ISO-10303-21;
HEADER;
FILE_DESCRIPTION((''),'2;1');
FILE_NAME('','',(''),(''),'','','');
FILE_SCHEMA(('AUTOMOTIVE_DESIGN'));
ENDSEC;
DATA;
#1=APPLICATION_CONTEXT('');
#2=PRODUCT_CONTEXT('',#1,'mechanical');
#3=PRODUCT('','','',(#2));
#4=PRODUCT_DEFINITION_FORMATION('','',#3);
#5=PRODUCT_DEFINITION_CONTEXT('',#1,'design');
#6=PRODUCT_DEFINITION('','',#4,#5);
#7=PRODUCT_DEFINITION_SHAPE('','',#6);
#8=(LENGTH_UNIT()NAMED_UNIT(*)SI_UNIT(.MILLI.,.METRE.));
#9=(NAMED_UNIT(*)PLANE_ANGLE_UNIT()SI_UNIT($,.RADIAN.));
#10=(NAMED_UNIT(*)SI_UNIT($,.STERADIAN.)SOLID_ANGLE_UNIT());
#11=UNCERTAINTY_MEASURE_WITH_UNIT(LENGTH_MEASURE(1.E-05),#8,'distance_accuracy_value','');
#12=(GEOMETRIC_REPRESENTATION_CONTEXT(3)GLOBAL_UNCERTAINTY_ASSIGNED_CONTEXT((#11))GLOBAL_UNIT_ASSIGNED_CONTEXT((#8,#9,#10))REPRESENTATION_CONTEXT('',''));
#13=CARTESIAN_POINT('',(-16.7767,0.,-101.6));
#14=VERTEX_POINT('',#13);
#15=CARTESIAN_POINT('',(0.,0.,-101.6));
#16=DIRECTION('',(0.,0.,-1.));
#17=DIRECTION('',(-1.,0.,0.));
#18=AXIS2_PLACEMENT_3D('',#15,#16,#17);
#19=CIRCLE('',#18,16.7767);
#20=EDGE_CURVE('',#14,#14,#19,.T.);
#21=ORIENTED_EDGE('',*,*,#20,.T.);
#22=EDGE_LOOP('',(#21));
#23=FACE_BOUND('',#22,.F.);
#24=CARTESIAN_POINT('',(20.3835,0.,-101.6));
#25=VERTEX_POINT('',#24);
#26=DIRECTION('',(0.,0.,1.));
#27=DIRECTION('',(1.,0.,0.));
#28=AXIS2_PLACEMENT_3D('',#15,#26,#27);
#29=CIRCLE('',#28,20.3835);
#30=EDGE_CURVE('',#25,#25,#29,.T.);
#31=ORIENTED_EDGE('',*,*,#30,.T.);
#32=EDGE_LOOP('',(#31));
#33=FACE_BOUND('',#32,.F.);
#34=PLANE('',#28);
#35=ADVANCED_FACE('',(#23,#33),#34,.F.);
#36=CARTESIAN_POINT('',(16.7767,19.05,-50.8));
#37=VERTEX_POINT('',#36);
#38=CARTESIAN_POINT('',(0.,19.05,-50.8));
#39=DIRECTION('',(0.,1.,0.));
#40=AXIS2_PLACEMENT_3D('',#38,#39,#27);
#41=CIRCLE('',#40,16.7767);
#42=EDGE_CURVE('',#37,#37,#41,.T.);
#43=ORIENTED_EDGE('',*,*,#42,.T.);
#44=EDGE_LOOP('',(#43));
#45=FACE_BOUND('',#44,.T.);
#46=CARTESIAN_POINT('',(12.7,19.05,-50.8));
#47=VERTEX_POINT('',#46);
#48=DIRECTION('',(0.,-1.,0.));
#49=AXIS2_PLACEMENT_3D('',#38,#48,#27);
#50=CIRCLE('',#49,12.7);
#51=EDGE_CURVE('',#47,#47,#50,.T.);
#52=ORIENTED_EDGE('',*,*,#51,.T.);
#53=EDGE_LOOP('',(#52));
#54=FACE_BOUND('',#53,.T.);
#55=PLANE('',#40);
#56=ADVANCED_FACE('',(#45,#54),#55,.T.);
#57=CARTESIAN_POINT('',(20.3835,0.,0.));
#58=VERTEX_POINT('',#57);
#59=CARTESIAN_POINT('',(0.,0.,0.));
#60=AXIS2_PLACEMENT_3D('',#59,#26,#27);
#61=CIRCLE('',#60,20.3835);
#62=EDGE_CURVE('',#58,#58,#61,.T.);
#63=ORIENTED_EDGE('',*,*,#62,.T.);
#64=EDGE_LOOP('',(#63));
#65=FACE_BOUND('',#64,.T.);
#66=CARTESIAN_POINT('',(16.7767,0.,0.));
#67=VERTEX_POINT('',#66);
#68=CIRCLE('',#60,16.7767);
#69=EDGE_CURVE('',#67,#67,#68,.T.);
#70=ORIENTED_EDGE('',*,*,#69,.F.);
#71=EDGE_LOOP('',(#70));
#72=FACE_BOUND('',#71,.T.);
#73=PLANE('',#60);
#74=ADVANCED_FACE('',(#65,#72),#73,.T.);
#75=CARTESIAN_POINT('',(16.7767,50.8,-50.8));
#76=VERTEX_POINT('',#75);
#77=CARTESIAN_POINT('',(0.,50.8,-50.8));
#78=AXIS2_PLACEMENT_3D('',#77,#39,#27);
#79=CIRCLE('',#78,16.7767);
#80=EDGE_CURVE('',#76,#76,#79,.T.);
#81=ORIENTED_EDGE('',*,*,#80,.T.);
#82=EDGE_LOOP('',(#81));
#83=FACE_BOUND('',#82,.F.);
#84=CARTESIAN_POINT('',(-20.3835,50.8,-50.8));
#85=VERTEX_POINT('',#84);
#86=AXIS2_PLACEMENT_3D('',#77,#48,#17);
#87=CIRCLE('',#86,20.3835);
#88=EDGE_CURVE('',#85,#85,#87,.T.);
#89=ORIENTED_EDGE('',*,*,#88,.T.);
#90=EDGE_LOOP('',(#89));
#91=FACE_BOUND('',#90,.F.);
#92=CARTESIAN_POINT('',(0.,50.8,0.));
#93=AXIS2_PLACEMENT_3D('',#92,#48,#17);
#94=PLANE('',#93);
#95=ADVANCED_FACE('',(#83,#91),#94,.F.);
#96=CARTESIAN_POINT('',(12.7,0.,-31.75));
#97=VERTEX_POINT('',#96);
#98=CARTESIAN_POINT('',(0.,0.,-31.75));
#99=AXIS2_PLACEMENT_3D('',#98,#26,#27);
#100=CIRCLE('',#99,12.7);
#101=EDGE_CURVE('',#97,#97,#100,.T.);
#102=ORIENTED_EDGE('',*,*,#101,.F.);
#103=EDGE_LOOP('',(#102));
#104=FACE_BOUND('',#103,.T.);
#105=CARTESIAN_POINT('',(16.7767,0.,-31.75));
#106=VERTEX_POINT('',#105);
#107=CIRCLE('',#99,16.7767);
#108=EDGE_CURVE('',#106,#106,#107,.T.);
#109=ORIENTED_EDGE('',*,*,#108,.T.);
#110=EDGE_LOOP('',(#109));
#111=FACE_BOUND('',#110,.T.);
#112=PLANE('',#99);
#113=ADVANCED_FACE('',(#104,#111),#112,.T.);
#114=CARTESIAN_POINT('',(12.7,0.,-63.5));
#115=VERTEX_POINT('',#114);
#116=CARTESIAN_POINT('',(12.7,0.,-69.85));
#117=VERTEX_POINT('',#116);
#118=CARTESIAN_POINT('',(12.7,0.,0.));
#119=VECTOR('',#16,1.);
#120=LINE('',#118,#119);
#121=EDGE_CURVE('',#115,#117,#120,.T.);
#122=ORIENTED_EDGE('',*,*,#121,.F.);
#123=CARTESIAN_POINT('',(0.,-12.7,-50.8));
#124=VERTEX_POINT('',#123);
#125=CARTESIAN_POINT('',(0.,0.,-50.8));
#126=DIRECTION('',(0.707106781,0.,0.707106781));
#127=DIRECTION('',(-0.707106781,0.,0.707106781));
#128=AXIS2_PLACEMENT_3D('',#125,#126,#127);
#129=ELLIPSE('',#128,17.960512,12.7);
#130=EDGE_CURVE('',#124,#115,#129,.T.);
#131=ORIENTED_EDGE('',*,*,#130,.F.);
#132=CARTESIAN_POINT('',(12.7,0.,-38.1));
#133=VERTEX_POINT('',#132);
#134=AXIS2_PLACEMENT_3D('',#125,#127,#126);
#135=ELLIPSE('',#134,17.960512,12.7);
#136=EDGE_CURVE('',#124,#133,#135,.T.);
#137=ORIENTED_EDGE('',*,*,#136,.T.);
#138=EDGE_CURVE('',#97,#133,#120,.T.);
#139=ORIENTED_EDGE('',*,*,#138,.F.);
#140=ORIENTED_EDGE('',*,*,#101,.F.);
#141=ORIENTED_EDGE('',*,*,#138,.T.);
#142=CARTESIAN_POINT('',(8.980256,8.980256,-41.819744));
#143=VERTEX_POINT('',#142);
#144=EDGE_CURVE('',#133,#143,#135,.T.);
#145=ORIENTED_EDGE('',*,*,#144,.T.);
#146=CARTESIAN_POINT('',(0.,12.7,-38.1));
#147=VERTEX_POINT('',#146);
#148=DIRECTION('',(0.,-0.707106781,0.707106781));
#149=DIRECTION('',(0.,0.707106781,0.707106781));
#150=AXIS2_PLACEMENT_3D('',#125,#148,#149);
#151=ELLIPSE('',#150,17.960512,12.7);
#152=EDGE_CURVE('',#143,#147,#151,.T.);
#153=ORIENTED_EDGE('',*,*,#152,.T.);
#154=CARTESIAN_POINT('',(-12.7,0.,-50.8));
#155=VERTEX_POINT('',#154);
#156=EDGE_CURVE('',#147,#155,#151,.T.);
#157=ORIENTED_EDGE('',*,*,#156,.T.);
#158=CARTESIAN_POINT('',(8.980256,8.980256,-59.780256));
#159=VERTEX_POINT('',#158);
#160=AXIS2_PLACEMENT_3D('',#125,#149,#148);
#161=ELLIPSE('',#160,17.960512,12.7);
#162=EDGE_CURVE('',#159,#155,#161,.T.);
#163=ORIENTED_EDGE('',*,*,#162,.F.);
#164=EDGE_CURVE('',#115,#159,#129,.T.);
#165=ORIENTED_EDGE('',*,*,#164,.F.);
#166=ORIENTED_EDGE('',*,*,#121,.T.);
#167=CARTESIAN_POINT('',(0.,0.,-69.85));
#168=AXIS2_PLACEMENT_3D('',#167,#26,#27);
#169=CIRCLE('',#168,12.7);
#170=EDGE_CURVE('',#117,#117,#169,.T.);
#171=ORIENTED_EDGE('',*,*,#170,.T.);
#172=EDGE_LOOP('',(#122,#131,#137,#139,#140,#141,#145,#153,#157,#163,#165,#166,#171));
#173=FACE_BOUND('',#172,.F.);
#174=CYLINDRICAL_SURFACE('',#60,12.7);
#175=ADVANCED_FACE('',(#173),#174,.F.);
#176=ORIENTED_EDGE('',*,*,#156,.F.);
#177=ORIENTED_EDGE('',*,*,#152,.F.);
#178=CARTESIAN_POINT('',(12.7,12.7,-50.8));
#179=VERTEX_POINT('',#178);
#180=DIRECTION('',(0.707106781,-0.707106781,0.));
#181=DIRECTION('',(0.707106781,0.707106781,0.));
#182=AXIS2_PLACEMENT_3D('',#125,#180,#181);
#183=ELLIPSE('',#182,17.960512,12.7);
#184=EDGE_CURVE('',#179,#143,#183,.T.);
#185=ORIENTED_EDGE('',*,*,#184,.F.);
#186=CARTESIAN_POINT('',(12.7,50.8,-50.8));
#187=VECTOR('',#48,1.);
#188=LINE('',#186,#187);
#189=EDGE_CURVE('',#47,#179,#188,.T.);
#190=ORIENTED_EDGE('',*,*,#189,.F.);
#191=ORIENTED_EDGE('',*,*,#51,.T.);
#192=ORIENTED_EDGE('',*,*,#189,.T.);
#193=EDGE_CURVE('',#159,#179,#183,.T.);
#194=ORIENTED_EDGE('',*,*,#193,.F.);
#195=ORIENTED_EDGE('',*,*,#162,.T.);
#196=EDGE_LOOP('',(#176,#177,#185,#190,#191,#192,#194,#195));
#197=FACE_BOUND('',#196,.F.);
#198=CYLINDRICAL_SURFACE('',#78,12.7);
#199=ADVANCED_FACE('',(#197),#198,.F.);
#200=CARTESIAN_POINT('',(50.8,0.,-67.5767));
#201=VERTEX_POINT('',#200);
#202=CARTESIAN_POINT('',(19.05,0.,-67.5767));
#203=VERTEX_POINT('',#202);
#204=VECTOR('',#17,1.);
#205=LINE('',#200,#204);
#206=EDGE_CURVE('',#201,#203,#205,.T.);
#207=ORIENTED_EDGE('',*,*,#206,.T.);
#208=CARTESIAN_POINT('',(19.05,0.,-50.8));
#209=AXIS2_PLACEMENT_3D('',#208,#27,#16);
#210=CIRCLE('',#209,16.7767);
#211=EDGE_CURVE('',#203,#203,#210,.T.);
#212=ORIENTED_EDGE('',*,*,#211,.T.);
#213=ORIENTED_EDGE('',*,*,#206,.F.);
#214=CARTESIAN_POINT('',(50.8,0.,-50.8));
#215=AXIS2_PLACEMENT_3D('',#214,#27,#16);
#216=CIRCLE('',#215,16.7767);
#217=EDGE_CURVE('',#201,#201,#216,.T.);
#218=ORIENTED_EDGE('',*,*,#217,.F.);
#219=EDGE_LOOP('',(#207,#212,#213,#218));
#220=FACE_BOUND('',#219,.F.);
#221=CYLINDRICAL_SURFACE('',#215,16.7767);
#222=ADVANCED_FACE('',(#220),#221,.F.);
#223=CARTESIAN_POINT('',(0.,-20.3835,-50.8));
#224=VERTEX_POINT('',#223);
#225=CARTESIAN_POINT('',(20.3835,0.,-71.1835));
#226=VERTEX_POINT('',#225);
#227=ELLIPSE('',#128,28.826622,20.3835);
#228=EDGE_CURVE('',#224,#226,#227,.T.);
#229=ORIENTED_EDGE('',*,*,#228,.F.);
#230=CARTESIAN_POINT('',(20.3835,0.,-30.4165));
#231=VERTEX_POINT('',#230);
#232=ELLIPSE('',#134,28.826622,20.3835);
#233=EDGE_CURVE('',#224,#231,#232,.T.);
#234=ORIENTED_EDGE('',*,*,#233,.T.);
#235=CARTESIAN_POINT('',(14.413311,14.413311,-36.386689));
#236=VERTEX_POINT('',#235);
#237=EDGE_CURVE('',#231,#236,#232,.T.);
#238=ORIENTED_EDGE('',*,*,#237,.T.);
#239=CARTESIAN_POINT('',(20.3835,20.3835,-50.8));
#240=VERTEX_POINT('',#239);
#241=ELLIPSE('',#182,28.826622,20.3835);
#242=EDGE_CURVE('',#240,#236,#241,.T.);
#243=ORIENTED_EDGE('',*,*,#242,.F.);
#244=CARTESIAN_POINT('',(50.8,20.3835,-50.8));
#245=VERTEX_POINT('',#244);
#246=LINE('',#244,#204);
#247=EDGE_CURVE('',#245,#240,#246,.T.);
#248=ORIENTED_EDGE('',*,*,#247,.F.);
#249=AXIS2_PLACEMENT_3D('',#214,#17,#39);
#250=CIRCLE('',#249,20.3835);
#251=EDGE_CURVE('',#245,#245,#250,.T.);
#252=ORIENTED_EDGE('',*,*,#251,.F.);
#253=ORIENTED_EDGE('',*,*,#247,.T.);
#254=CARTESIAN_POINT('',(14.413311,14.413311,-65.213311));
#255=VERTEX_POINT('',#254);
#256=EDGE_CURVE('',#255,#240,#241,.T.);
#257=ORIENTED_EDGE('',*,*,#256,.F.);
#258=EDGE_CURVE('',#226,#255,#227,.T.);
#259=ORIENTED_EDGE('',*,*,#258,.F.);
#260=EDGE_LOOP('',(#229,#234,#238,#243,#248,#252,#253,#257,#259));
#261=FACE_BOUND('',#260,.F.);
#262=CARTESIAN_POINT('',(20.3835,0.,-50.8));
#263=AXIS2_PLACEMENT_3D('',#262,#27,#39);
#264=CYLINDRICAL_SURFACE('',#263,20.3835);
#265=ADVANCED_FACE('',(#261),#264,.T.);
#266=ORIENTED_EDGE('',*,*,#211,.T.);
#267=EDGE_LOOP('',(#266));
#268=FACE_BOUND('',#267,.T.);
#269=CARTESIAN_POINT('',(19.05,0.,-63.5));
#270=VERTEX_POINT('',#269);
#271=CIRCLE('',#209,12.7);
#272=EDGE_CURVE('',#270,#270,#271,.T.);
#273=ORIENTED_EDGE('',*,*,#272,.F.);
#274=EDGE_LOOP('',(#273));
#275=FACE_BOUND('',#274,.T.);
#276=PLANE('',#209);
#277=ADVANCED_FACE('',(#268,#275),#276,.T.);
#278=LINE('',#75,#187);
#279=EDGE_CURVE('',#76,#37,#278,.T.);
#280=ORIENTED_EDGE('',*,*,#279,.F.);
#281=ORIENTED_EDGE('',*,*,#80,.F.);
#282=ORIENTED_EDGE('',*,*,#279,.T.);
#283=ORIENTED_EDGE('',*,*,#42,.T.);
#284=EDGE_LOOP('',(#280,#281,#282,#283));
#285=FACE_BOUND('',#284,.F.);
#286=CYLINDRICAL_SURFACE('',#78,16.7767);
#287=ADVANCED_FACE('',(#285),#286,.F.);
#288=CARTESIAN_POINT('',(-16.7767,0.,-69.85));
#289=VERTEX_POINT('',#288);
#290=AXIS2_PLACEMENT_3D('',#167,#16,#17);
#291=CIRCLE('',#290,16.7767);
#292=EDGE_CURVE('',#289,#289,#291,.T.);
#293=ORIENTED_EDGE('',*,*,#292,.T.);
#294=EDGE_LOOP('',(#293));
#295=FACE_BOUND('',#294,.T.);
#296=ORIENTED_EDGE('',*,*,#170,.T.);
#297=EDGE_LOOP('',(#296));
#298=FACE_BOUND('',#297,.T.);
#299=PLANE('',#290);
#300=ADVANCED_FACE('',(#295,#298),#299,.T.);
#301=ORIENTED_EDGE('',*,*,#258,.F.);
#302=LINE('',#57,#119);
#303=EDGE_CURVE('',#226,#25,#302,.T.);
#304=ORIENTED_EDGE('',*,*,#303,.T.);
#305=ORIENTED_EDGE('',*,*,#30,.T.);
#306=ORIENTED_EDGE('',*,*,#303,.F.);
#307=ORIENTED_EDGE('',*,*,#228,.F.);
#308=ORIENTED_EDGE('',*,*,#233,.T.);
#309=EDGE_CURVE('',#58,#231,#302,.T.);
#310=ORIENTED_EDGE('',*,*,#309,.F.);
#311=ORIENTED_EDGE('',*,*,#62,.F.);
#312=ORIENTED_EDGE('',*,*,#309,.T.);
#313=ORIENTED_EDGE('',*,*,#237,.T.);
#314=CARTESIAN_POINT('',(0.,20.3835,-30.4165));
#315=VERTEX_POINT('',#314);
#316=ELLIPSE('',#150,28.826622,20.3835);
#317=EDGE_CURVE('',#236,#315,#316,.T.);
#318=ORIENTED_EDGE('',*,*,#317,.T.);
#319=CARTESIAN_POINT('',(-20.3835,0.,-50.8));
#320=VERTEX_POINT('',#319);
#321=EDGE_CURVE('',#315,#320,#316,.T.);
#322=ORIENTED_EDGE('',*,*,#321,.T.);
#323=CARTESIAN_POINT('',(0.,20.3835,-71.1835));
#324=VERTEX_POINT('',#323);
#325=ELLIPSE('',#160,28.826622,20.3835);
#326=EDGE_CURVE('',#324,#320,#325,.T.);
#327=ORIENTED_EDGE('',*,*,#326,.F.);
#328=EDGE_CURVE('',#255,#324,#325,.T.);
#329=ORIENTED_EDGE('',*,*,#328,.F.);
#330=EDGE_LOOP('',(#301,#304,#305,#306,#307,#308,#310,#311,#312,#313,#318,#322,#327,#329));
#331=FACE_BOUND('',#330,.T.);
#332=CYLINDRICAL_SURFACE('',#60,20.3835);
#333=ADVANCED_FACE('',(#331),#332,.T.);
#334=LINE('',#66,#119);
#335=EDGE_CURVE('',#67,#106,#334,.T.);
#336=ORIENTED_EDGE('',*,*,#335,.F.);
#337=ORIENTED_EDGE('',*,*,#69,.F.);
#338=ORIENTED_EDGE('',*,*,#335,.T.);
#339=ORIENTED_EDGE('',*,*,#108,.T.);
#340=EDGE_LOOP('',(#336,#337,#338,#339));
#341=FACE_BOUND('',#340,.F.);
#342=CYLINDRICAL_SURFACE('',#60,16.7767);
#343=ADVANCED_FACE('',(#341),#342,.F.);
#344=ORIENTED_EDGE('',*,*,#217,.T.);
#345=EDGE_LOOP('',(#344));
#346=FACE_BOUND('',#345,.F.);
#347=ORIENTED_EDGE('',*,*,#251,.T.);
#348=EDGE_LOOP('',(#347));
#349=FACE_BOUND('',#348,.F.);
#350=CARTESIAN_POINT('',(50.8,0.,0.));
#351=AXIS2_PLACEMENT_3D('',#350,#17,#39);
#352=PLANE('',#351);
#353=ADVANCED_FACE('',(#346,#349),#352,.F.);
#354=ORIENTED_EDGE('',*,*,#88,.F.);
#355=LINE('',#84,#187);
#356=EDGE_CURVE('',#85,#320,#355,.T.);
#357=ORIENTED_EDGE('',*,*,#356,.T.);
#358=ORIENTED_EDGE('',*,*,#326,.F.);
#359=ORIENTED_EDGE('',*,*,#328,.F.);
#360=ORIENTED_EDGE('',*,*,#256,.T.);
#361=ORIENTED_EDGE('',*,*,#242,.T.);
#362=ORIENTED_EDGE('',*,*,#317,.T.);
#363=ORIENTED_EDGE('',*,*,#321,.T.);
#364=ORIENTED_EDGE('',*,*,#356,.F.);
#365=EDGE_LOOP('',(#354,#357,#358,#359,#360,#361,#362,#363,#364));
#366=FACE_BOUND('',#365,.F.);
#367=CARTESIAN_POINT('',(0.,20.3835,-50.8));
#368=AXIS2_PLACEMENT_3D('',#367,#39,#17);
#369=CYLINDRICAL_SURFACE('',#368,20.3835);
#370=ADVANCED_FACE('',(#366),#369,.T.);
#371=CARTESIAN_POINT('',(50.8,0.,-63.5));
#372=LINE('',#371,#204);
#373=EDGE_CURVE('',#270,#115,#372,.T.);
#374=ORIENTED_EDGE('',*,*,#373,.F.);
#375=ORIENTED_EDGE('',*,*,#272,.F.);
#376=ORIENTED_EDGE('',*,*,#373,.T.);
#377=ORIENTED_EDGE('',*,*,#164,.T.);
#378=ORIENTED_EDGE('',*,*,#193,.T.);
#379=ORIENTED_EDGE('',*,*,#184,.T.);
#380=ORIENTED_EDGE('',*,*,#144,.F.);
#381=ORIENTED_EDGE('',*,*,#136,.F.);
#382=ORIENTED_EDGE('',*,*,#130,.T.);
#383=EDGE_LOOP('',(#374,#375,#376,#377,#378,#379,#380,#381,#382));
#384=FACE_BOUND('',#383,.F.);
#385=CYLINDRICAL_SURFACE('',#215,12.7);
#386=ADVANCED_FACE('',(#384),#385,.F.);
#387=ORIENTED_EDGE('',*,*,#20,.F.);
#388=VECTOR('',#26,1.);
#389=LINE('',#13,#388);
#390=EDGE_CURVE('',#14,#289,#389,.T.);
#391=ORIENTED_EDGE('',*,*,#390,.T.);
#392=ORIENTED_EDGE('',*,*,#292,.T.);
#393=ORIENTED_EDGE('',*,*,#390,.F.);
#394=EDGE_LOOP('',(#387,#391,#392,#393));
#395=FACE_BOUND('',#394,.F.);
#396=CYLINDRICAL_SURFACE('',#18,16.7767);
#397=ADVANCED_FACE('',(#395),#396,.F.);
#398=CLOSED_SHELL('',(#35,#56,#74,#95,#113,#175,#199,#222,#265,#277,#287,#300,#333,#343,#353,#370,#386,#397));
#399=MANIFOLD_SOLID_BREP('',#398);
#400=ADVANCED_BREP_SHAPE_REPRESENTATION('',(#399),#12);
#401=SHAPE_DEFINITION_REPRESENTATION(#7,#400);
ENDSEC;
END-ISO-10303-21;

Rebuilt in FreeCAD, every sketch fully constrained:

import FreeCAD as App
import Part
import Sketcher
from FreeCAD import Vector
Q = App.Units.Quantity

doc = App.newDocument("Part")
body = doc.addObject("PartDesign::Body", "Body")
body.AllowCompound = True

sketch1 = body.newObject("Sketcher::SketchObject", "Sketch")
sketch1.AttachmentSupport = (doc.getObject("XY_Plane"), [""])
sketch1.MapMode = "FlatFace"
sketch1.addGeometry(Part.Circle(Vector(0, 0, 0), Vector(0, 0, 1), 20), False)
sketch1.addConstraint([
    Sketcher.Constraint("Coincident", 0, 3, -1, 1),
    Sketcher.Constraint("Diameter", 0, Q("1.605 in")),
])
pad1 = body.newObject("PartDesign::Pad", "Pad")
pad1.Profile = sketch1
pad1.Length = Q("4 in")
pad1.Reversed = True

sketch2 = body.newObject("Sketcher::SketchObject", "Sketch001")
sketch2.AttachmentSupport = (doc.getObject("YZ_Plane"), [""])
sketch2.MapMode = "FlatFace"
sketch2.AttachmentOffset = App.Placement(Vector(0, 0, 0.8025 * 25.4), App.Rotation())
sketch2.addGeometry(Part.Circle(Vector(0, -51, 0), Vector(0, 0, 1), 20), False)
sketch2.addConstraint([
    Sketcher.Constraint("PointOnObject", 0, 3, -2),
    Sketcher.Constraint("Diameter", 0, Q("1.605 in")),
    Sketcher.Constraint("DistanceY", 0, 3, -1, 1, Q("2 in")),
])
pad2 = body.newObject("PartDesign::Pad", "Pad001")
pad2.Profile = sketch2
pad2.Length = Q("1.1975 in")

sketch3 = body.newObject("Sketcher::SketchObject", "Sketch002")
sketch3.AttachmentSupport = (doc.getObject("YZ_Plane"), [""])
sketch3.MapMode = "FlatFace"
sketch3.AttachmentOffset = App.Placement(Vector(0, 0, 0.8025 * 25.4), App.Rotation())
sketch3.addGeometry(Part.Circle(Vector(0, -51, 0), Vector(0, 0, 1), 20), False)
sketch3.addConstraint([
    Sketcher.Constraint("PointOnObject", 0, 3, -2),
    Sketcher.Constraint("Diameter", 0, Q("1.605 in")),
    Sketcher.Constraint("DistanceY", 0, 3, -1, 1, Q("2 in")),
])
pad3 = body.newObject("PartDesign::Pad", "Pad002")
pad3.Profile = sketch3
pad3.Length = Q("0.8025 in")
pad3.Reversed = True

sketch4 = body.newObject("Sketcher::SketchObject", "Sketch003")
sketch4.AttachmentSupport = (doc.getObject("XZ_Plane"), [""])
sketch4.MapMode = "FlatFace"
sketch4.AttachmentOffset = App.Placement(Vector(0, 0, -0.8025 * 25.4), App.Rotation())
sketch4.addGeometry(Part.Circle(Vector(0, -51, 0), Vector(0, 0, 1), 20), False)
sketch4.addConstraint([
    Sketcher.Constraint("PointOnObject", 0, 3, -2),
    Sketcher.Constraint("Diameter", 0, Q("1.605 in")),
    Sketcher.Constraint("DistanceY", 0, 3, -1, 1, Q("2 in")),
])
pad4 = body.newObject("PartDesign::Pad", "Pad003")
pad4.Profile = sketch4
pad4.Length = Q("1.1975 in")
pad4.Reversed = True

sketch5 = body.newObject("Sketcher::SketchObject", "Sketch004")
sketch5.AttachmentSupport = (doc.getObject("XZ_Plane"), [""])
sketch5.MapMode = "FlatFace"
sketch5.AttachmentOffset = App.Placement(Vector(0, 0, -0.8025 * 25.4), App.Rotation())
sketch5.addGeometry(Part.Circle(Vector(0, -51, 0), Vector(0, 0, 1), 20), False)
sketch5.addConstraint([
    Sketcher.Constraint("PointOnObject", 0, 3, -2),
    Sketcher.Constraint("Diameter", 0, Q("1.605 in")),
    Sketcher.Constraint("DistanceY", 0, 3, -1, 1, Q("2 in")),
])
pad5 = body.newObject("PartDesign::Pad", "Pad004")
pad5.Profile = sketch5
pad5.Length = Q("0.8025 in")

sketch6 = body.newObject("Sketcher::SketchObject", "Sketch005")
sketch6.AttachmentSupport = (doc.getObject("XY_Plane"), [""])
sketch6.MapMode = "FlatFace"
sketch6.AttachmentOffset = App.Placement(Vector(0, 0, -4 * 25.4), App.Rotation())
sketch6.addGeometry(Part.Circle(Vector(0, 0, 0), Vector(0, 0, 1), 17), False)
sketch6.addConstraint([
    Sketcher.Constraint("Coincident", 0, 3, -1, 1),
    Sketcher.Constraint("Diameter", 0, Q("1.321 in")),
])
pocket1 = body.newObject("PartDesign::Pocket", "Pocket")
pocket1.Profile = sketch6
pocket1.Length = Q("1.25 in")
pocket1.Reversed = True

sketch7 = body.newObject("Sketcher::SketchObject", "Sketch006")
sketch7.AttachmentSupport = (doc.getObject("YZ_Plane"), [""])
sketch7.MapMode = "FlatFace"
sketch7.AttachmentOffset = App.Placement(Vector(0, 0, 2 * 25.4), App.Rotation())
sketch7.addGeometry(Part.Circle(Vector(0, -51, 0), Vector(0, 0, 1), 17), False)
sketch7.addConstraint([
    Sketcher.Constraint("PointOnObject", 0, 3, -2),
    Sketcher.Constraint("Diameter", 0, Q("1.321 in")),
    Sketcher.Constraint("DistanceY", 0, 3, -1, 1, Q("2 in")),
])
pocket2 = body.newObject("PartDesign::Pocket", "Pocket001")
pocket2.Profile = sketch7
pocket2.Length = Q("1.25 in")

sketch8 = body.newObject("Sketcher::SketchObject", "Sketch007")
sketch8.AttachmentSupport = (doc.getObject("XY_Plane"), [""])
sketch8.MapMode = "FlatFace"
sketch8.addGeometry(Part.Circle(Vector(0, 0, 0), Vector(0, 0, 1), 17), False)
sketch8.addConstraint([
    Sketcher.Constraint("Coincident", 0, 3, -1, 1),
    Sketcher.Constraint("Diameter", 0, Q("1.321 in")),
])
pocket3 = body.newObject("PartDesign::Pocket", "Pocket002")
pocket3.Profile = sketch8
pocket3.Length = Q("1.25 in")

sketch9 = body.newObject("Sketcher::SketchObject", "Sketch008")
sketch9.AttachmentSupport = (doc.getObject("XY_Plane"), [""])
sketch9.MapMode = "FlatFace"
sketch9.addGeometry(Part.Circle(Vector(0, 0, 0), Vector(0, 0, 1), 13), False)
sketch9.addConstraint([
    Sketcher.Constraint("Coincident", 0, 3, -1, 1),
    Sketcher.Constraint("Diameter", 0, Q("1 in")),
])
pocket4 = body.newObject("PartDesign::Pocket", "Pocket003")
pocket4.Profile = sketch9
pocket4.Length = Q("4 in")

sketch10 = body.newObject("Sketcher::SketchObject", "Sketch009")
sketch10.AttachmentSupport = (doc.getObject("YZ_Plane"), [""])
sketch10.MapMode = "FlatFace"
sketch10.AttachmentOffset = App.Placement(Vector(0, 0, 2 * 25.4), App.Rotation())
sketch10.addGeometry(Part.Circle(Vector(0, -51, 0), Vector(0, 0, 1), 13), False)
sketch10.addConstraint([
    Sketcher.Constraint("PointOnObject", 0, 3, -2),
    Sketcher.Constraint("Diameter", 0, Q("1 in")),
    Sketcher.Constraint("DistanceY", 0, 3, -1, 1, Q("2 in")),
])
pocket5 = body.newObject("PartDesign::Pocket", "Pocket004")
pocket5.Profile = sketch10
pocket5.Length = Q("2 in")

sketch11 = body.newObject("Sketcher::SketchObject", "Sketch010")
sketch11.AttachmentSupport = (doc.getObject("XZ_Plane"), [""])
sketch11.MapMode = "FlatFace"
sketch11.AttachmentOffset = App.Placement(Vector(0, 0, -2 * 25.4), App.Rotation())
sketch11.addGeometry(Part.Circle(Vector(0, -51, 0), Vector(0, 0, 1), 17), False)
sketch11.addConstraint([
    Sketcher.Constraint("PointOnObject", 0, 3, -2),
    Sketcher.Constraint("Diameter", 0, Q("1.321 in")),
    Sketcher.Constraint("DistanceY", 0, 3, -1, 1, Q("2 in")),
])
pocket6 = body.newObject("PartDesign::Pocket", "Pocket005")
pocket6.Profile = sketch11
pocket6.Length = Q("1.25 in")
pocket6.Reversed = True

sketch12 = body.newObject("Sketcher::SketchObject", "Sketch011")
sketch12.AttachmentSupport = (doc.getObject("XZ_Plane"), [""])
sketch12.MapMode = "FlatFace"
sketch12.AttachmentOffset = App.Placement(Vector(0, 0, -2 * 25.4), App.Rotation())
sketch12.addGeometry(Part.Circle(Vector(0, -51, 0), Vector(0, 0, 1), 13), False)
sketch12.addConstraint([
    Sketcher.Constraint("PointOnObject", 0, 3, -2),
    Sketcher.Constraint("Diameter", 0, Q("1 in")),
    Sketcher.Constraint("DistanceY", 0, 3, -1, 1, Q("2 in")),
])
pocket7 = body.newObject("PartDesign::Pocket", "Pocket006")
pocket7.Profile = sketch12
pocket7.Length = Q("2 in")
pocket7.Reversed = True

doc.recompute()
